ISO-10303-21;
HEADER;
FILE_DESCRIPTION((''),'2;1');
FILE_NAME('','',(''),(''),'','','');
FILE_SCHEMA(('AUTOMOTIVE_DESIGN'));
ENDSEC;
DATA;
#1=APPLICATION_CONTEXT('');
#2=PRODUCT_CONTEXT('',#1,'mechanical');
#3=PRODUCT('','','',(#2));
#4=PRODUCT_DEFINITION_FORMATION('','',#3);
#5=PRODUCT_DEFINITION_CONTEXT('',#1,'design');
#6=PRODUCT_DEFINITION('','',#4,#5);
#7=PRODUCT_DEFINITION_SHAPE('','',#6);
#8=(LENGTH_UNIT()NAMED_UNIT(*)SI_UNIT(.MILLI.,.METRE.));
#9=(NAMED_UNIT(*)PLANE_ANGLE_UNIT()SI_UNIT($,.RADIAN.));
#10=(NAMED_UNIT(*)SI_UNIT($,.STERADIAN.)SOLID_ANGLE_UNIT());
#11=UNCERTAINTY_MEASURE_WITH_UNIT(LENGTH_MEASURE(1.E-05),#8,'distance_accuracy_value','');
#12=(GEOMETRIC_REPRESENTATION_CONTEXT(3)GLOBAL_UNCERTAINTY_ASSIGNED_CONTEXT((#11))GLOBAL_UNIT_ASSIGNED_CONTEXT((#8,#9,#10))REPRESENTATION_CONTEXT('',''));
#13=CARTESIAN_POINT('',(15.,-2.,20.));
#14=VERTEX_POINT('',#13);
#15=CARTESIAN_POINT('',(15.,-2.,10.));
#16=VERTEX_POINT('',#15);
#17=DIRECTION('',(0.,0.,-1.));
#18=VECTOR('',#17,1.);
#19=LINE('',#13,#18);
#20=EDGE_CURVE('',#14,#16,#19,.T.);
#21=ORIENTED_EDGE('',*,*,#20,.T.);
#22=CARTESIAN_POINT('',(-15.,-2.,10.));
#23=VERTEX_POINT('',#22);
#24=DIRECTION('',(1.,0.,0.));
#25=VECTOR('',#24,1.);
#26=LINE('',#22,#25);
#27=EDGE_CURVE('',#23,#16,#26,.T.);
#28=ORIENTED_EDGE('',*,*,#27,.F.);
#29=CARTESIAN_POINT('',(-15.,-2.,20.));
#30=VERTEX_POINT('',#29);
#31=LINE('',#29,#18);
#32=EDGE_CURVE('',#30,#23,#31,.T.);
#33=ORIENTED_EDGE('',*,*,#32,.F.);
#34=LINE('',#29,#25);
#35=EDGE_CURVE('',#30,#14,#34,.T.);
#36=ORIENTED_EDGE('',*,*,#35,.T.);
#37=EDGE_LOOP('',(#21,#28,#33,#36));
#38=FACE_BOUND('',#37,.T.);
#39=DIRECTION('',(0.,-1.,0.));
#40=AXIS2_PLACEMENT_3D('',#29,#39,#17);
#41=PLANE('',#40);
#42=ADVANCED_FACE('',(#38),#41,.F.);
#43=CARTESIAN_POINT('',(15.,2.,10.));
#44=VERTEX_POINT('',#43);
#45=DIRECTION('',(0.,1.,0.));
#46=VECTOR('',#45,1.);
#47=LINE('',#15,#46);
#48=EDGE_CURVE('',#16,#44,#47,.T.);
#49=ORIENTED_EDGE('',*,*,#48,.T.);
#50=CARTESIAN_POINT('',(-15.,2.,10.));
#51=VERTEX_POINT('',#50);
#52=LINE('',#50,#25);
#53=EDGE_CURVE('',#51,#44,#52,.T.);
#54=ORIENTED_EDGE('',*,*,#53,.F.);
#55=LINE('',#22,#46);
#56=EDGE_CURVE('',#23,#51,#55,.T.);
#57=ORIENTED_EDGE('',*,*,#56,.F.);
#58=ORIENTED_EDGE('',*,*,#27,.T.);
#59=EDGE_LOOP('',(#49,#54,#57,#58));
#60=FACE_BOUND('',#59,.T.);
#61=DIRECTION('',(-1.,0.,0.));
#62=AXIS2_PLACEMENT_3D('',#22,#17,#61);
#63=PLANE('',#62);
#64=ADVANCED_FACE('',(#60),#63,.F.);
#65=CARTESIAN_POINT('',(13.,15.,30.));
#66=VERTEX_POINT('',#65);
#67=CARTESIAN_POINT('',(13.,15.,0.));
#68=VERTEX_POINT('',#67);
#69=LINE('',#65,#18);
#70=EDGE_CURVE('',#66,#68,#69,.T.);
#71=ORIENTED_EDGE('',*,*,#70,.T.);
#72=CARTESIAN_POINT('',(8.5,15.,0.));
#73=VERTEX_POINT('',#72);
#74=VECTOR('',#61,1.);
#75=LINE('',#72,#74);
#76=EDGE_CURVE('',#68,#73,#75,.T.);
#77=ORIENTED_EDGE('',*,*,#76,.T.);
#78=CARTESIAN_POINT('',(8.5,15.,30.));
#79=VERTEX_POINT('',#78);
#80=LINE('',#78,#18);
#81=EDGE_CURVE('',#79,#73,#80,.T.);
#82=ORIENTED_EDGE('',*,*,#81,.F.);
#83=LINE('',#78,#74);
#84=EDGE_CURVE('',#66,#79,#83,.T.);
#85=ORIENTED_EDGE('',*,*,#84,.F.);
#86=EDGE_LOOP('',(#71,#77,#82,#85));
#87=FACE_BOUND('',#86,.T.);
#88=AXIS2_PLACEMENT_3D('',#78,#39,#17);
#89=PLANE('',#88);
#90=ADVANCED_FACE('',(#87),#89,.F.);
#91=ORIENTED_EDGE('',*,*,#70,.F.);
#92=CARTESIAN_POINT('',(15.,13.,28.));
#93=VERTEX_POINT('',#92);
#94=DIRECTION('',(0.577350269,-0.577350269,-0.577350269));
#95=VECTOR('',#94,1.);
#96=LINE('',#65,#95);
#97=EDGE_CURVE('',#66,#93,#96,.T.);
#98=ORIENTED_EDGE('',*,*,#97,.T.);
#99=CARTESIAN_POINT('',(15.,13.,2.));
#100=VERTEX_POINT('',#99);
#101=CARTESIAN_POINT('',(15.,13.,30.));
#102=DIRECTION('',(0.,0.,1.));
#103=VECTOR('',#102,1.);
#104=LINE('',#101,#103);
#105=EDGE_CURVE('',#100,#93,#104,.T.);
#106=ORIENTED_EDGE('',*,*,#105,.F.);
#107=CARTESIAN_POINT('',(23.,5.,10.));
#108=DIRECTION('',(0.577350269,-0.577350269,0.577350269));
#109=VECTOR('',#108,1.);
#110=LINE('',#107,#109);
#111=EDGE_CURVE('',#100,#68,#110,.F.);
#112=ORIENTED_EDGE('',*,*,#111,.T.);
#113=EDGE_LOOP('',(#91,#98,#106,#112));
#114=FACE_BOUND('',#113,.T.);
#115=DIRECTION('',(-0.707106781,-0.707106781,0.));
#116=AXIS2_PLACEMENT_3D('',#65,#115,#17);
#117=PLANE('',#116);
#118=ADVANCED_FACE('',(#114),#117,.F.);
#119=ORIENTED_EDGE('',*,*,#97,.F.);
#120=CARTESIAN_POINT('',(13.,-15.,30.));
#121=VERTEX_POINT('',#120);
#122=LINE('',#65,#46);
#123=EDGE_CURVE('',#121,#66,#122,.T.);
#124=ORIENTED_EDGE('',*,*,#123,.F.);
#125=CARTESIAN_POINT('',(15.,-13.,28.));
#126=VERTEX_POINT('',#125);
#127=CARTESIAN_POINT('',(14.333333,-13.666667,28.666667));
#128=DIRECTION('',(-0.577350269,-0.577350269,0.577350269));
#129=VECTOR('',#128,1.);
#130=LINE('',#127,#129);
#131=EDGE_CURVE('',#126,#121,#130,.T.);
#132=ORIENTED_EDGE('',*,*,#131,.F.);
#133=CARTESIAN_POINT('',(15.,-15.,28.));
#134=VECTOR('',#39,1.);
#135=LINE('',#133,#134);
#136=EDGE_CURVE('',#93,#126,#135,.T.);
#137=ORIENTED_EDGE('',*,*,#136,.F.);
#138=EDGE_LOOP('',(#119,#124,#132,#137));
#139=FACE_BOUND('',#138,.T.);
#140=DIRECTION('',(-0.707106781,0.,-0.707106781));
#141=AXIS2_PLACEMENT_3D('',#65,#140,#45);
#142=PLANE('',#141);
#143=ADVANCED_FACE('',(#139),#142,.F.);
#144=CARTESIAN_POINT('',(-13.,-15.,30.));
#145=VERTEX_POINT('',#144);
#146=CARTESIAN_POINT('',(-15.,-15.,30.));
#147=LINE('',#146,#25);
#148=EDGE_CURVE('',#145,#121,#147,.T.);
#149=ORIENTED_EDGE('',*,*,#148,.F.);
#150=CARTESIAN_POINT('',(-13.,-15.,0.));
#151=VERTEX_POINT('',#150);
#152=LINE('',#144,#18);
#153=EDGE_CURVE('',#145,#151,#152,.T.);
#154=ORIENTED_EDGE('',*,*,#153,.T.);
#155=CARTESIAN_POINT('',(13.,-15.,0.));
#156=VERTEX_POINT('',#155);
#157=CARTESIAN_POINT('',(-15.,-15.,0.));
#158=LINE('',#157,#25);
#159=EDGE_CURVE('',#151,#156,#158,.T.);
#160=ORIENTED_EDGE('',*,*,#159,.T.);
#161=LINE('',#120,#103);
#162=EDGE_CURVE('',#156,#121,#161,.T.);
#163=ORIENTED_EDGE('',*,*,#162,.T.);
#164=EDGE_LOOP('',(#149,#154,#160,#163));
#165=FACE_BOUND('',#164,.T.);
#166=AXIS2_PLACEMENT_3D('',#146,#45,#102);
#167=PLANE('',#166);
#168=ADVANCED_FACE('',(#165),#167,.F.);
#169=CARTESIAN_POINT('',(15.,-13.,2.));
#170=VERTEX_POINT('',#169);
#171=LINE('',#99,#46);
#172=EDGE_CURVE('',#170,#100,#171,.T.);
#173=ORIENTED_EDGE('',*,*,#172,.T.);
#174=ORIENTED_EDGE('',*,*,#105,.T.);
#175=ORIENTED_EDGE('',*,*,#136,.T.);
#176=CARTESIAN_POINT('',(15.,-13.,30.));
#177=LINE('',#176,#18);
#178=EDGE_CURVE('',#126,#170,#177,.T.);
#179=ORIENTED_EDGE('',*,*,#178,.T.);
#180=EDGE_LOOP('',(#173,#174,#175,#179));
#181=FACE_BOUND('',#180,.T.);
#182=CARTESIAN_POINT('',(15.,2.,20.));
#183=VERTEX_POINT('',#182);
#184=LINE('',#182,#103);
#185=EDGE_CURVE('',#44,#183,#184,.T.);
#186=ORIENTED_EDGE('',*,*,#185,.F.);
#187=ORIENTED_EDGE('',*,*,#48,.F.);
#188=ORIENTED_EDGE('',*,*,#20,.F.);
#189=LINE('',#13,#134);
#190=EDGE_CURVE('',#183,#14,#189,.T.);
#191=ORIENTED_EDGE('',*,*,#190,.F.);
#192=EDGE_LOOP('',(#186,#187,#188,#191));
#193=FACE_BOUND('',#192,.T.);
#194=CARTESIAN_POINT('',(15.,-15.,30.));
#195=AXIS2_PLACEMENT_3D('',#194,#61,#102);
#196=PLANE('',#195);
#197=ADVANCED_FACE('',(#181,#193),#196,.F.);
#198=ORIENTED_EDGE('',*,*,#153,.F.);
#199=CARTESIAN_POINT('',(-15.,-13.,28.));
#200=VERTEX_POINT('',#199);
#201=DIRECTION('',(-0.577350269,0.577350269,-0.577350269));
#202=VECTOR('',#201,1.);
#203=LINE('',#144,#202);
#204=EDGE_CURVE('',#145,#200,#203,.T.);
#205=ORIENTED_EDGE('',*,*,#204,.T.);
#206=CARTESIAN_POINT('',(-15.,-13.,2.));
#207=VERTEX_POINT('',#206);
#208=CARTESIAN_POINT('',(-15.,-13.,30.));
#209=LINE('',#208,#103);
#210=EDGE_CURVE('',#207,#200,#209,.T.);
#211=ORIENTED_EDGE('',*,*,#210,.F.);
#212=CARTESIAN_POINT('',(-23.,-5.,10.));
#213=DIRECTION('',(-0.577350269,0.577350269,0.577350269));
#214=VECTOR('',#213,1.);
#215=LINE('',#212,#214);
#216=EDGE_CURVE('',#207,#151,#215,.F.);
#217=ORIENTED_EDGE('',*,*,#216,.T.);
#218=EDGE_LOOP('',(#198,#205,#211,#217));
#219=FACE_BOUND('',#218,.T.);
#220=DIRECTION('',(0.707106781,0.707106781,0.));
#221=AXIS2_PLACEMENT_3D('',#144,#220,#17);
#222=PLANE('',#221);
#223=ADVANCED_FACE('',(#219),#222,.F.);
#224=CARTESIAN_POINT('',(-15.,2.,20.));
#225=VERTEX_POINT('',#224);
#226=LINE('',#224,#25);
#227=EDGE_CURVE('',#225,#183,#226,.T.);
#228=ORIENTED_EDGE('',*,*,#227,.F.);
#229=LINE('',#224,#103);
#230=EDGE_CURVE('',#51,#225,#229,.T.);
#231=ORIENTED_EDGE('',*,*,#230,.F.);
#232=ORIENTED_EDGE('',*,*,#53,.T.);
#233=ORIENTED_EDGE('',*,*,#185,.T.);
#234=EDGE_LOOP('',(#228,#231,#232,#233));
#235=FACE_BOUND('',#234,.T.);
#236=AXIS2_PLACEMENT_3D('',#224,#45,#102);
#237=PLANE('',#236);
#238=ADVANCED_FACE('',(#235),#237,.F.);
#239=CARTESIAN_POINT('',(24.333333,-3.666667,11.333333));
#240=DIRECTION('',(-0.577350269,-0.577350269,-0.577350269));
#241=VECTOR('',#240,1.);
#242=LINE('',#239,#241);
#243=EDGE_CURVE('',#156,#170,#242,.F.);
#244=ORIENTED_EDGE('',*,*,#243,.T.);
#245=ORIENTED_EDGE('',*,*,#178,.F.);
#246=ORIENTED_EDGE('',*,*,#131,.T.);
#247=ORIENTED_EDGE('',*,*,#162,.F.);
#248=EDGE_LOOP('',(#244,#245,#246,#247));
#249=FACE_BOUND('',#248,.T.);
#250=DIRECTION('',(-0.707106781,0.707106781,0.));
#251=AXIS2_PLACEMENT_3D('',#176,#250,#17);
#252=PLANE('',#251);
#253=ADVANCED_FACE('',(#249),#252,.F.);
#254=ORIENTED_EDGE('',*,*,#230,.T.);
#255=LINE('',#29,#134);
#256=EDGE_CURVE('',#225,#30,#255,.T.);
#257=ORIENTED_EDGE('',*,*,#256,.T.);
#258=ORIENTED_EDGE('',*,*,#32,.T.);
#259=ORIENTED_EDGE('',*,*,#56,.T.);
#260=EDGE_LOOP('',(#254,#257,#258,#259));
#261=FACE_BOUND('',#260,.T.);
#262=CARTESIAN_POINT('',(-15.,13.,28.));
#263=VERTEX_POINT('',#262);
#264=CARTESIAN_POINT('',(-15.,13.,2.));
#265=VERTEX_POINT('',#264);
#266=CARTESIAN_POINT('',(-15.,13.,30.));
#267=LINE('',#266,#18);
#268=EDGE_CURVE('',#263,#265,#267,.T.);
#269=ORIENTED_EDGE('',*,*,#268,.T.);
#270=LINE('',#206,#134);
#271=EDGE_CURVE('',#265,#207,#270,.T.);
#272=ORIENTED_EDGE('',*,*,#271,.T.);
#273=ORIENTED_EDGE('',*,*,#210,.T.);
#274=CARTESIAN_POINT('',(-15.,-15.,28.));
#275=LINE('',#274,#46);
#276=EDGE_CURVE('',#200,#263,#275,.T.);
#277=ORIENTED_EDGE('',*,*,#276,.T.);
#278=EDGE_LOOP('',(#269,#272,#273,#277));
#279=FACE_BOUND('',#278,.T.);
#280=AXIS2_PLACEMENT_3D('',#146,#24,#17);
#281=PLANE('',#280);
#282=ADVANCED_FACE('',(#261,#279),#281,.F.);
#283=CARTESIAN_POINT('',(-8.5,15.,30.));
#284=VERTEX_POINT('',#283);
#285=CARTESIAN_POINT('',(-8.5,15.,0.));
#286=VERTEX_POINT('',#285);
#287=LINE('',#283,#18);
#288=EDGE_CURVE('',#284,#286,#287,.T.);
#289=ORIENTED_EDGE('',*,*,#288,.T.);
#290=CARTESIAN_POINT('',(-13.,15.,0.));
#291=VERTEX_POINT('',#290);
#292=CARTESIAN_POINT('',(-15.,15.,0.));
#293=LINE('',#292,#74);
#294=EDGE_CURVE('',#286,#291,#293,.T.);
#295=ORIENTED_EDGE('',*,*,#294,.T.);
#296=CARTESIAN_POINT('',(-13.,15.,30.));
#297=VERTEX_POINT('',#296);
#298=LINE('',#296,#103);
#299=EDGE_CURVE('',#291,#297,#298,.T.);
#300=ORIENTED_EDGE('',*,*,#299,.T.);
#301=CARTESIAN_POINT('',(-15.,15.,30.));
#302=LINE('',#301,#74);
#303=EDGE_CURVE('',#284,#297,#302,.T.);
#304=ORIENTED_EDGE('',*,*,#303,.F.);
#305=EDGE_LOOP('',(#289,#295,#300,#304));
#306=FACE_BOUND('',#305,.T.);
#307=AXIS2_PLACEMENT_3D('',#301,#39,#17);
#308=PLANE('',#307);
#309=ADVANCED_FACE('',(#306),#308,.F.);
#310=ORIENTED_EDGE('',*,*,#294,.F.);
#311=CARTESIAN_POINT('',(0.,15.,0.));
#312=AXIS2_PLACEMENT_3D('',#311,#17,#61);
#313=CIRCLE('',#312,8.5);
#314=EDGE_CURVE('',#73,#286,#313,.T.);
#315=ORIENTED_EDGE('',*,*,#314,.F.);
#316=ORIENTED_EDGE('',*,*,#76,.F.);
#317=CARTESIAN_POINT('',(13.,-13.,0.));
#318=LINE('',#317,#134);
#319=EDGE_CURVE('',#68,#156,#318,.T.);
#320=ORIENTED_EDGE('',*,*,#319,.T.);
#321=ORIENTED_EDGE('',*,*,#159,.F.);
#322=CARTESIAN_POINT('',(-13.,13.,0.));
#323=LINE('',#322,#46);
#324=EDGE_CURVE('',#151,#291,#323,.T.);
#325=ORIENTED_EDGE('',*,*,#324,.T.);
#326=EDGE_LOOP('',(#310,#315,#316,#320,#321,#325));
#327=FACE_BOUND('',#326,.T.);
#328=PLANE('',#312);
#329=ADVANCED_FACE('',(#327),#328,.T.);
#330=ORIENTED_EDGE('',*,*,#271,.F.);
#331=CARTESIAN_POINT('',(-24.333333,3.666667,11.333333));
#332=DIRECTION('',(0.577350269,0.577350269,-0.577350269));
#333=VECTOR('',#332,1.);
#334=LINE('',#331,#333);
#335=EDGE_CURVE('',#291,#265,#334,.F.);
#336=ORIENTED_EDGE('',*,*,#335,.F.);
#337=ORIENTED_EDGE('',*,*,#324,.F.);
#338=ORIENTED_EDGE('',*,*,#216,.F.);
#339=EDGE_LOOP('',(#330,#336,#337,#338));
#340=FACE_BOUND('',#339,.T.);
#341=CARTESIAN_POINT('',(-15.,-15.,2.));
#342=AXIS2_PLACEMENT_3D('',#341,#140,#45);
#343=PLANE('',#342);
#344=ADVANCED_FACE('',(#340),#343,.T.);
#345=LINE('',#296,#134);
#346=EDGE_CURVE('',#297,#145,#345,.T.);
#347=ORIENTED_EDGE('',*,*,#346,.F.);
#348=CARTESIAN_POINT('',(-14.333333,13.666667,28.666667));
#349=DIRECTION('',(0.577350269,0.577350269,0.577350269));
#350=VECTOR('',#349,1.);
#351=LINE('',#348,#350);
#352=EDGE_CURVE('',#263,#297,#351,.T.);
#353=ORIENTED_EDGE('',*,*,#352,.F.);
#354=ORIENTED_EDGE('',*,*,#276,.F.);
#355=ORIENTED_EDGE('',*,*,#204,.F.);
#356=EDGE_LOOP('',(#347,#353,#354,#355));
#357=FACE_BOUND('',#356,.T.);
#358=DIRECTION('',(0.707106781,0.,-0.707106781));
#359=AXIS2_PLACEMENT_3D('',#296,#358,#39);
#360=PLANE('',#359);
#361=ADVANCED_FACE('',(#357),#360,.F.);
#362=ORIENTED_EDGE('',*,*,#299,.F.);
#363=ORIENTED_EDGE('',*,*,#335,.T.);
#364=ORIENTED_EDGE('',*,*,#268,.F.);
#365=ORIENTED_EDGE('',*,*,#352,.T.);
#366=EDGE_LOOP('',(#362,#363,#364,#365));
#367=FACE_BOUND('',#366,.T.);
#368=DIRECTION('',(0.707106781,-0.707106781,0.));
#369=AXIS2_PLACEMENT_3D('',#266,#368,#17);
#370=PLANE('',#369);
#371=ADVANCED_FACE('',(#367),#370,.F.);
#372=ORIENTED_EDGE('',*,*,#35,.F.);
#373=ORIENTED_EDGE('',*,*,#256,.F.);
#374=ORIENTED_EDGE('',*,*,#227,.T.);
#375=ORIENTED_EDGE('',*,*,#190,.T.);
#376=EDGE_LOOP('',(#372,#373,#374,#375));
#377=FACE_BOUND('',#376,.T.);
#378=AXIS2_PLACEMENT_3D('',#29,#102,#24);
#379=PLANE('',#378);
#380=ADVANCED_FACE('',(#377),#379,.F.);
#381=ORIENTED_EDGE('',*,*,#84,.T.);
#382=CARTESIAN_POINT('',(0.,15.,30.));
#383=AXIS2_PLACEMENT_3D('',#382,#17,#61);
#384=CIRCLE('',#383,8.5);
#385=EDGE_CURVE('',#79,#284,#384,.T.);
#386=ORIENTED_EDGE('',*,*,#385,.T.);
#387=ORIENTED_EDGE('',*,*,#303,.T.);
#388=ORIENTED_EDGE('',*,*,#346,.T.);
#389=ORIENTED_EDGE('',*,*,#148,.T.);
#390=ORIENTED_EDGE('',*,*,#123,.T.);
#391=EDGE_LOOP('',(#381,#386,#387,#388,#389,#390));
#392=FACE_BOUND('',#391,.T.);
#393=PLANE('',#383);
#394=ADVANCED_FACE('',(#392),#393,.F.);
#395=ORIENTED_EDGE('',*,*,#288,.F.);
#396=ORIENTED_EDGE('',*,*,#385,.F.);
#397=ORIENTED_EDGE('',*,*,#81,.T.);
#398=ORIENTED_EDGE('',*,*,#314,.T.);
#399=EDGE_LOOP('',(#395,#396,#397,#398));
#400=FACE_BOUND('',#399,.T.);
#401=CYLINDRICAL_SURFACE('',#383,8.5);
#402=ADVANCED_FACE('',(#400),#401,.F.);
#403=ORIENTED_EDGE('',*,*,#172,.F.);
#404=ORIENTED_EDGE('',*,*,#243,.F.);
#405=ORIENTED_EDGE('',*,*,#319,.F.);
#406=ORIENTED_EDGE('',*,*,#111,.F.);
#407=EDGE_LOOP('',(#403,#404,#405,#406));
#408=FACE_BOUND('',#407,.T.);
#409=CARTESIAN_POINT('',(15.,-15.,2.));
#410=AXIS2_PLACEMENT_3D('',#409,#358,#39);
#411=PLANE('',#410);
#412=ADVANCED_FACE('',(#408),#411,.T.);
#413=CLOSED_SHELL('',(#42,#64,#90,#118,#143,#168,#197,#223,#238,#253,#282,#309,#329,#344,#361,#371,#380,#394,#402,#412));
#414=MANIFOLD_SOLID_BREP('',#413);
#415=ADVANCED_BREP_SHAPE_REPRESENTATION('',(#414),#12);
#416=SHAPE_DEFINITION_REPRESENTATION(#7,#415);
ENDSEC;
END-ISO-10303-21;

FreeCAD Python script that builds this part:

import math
import FreeCAD as App
import Part
import Sketcher

V = App.Vector
Q = App.Units.Quantity


def edges_at(feature, points):
    """Names of the edges that pass closest to the given points."""
    edges = feature.Shape.Edges
    near = lambda p: min(range(len(edges)), key=lambda i: edges[i].distToShape(Part.Vertex(*p))[0])
    return sorted({f"Edge{near(p) + 1}" for p in points})

doc = App.newDocument("Part")
params = doc.addObject("Spreadsheet::Sheet", "Params")
for row, (alias, value) in enumerate([
    ("sketch1_radius", "8.5 mm"),
    ("sketch1_width", "30 mm"),
    ("pad1_length", "30 mm"),
    ("sketch2_width", "4 mm"),
    ("sketch2_height", "10 mm"),
    ("chamfer_size", "2 mm"),
    ("chamfer2_size", "2 mm"),
    ("chamfer3_size", "2 mm"),
], start=1):
    params.set(f"A{row}", alias)
    params.set(f"B{row}", "=" + value)
    params.setAlias(f"B{row}", alias)

body = doc.addObject("PartDesign::Body", "Body")

# Sketch on XY plane
sketch1 = body.newObject("Sketcher::SketchObject", "Sketch")
sketch1.AttachmentSupport = (doc.getObject("XY_Plane"), [""])
sketch1.MapMode = "FlatFace"
sketch1.addGeometry([
    Part.LineSegment(V(15, 15, 0), V(8.5, 15, 0)),  # 0
    Part.ArcOfCircle(Part.Circle(V(0, 15, 0), V(0, 0, 1), 8.5), math.radians(180), math.radians(360)),  # 1
    Part.LineSegment(V(-8.5, 15, 0), V(-15, 15, 0)),  # 2
    Part.LineSegment(V(-15, 15, 0), V(-15, -15, 0)),  # 3
    Part.LineSegment(V(-15, -15, 0), V(15, -15, 0)),  # 4
    Part.LineSegment(V(15, -15, 0), V(15, 15, 0)),  # 5
], False)
sketch1.addConstraint([
    Sketcher.Constraint("Coincident", 0, 2, 1, 2),
    Sketcher.Constraint("Coincident", 1, 1, 2, 1),
    Sketcher.Constraint("Coincident", 2, 2, 3, 1),
    Sketcher.Constraint("Coincident", 3, 2, 4, 1),
    Sketcher.Constraint("Coincident", 4, 2, 5, 1),
    Sketcher.Constraint("Coincident", 5, 2, 0, 1),
    Sketcher.Constraint("Horizontal", 0),
    Sketcher.Constraint("Horizontal", 2),
    Sketcher.Constraint("Vertical", 3),
    Sketcher.Constraint("Horizontal", 4),
    Sketcher.Constraint("Vertical", 5),
    Sketcher.Constraint("Symmetric", 2, 2, 4, 2, -1, 1),
    Sketcher.Constraint("Symmetric", 0, 2, 1, 1, -2),
    Sketcher.Constraint("Horizontal", 1, 3, 0, 2),
    Sketcher.Constraint("Equal", 4, 3),
    Sketcher.Constraint("Radius", 1, Q("8.5 mm")),
    Sketcher.Constraint("DistanceX", 4, 1, 4, 2, Q("30 mm")),
])
sketch1.setExpression("Constraints[15]", "Params.sketch1_radius")
sketch1.setExpression("Constraints[16]", "Params.sketch1_width")
pad1 = body.newObject("PartDesign::Pad", "Pad")
pad1.Profile = sketch1
pad1.setExpression("Length", "Params.pad1_length")

# Sketch on YZ plane
sketch2 = body.newObject("Sketcher::SketchObject", "Sketch001")
sketch2.AttachmentSupport = (doc.getObject("YZ_Plane"), [""])
sketch2.MapMode = "FlatFace"
sketch2.AttachmentOffset = App.Placement(V(0, 0, 15), App.Rotation())
sketch2.addGeometry([
    Part.LineSegment(V(2, 20, 0), V(-2, 20, 0)),
    Part.LineSegment(V(-2, 20, 0), V(-2, 10, 0)),
    Part.LineSegment(V(-2, 10, 0), V(2, 10, 0)),
    Part.LineSegment(V(2, 10, 0), V(2, 20, 0)),
], False)
sketch2.addConstraint([
    Sketcher.Constraint("Coincident", 0, 2, 1, 1),
    Sketcher.Constraint("Coincident", 1, 2, 2, 1),
    Sketcher.Constraint("Coincident", 2, 2, 3, 1),
    Sketcher.Constraint("Coincident", 3, 2, 0, 1),
    Sketcher.Constraint("Horizontal", 0),
    Sketcher.Constraint("Vertical", 1),
    Sketcher.Constraint("Horizontal", 2),
    Sketcher.Constraint("Vertical", 3),
    Sketcher.Constraint("DistanceX", 0, 2, 0, 1, Q("4 mm")),
    Sketcher.Constraint("DistanceY", 1, 2, 1, 1, Q("10 mm")),
    Sketcher.Constraint("DistanceX", 0, 2, -1, 1, Q("2 mm")),
    Sketcher.Constraint("DistanceY", -1, 1, 0, 2, Q("20 mm")),
])
sketch2.setExpression("Constraints[8]", "Params.sketch2_width")
sketch2.setExpression("Constraints[9]", "Params.sketch2_height")
pocket1 = body.newObject("PartDesign::Pocket", "Pocket")
pocket1.Profile = sketch2
pocket1.Type = "ThroughAll"
doc.recompute()

chamfer = body.newObject("PartDesign::Chamfer", "Chamfer")
chamfer.Base = (pocket1, edges_at(pocket1, [(-15, 15, 15), (15, 15, 15)]))
chamfer.setExpression("Size", "Params.chamfer_size")
doc.recompute()

chamfer2 = body.newObject("PartDesign::Chamfer", "Chamfer001")
chamfer2.Base = (chamfer, edges_at(chamfer, [(15, -15, 15), (-15, -15, 15)]))
chamfer2.setExpression("Size", "Params.chamfer2_size")
doc.recompute()

chamfer3 = body.newObject("PartDesign::Chamfer", "Chamfer002")
chamfer3.Base = (chamfer2, edges_at(chamfer2, [
    (-15, 0, 0),
    (-15, 0, 30),
    (15, 0, 30),
    (15, 0, 0),
]))
chamfer3.setExpression("Size", "Params.chamfer3_size")

doc.recompute()
